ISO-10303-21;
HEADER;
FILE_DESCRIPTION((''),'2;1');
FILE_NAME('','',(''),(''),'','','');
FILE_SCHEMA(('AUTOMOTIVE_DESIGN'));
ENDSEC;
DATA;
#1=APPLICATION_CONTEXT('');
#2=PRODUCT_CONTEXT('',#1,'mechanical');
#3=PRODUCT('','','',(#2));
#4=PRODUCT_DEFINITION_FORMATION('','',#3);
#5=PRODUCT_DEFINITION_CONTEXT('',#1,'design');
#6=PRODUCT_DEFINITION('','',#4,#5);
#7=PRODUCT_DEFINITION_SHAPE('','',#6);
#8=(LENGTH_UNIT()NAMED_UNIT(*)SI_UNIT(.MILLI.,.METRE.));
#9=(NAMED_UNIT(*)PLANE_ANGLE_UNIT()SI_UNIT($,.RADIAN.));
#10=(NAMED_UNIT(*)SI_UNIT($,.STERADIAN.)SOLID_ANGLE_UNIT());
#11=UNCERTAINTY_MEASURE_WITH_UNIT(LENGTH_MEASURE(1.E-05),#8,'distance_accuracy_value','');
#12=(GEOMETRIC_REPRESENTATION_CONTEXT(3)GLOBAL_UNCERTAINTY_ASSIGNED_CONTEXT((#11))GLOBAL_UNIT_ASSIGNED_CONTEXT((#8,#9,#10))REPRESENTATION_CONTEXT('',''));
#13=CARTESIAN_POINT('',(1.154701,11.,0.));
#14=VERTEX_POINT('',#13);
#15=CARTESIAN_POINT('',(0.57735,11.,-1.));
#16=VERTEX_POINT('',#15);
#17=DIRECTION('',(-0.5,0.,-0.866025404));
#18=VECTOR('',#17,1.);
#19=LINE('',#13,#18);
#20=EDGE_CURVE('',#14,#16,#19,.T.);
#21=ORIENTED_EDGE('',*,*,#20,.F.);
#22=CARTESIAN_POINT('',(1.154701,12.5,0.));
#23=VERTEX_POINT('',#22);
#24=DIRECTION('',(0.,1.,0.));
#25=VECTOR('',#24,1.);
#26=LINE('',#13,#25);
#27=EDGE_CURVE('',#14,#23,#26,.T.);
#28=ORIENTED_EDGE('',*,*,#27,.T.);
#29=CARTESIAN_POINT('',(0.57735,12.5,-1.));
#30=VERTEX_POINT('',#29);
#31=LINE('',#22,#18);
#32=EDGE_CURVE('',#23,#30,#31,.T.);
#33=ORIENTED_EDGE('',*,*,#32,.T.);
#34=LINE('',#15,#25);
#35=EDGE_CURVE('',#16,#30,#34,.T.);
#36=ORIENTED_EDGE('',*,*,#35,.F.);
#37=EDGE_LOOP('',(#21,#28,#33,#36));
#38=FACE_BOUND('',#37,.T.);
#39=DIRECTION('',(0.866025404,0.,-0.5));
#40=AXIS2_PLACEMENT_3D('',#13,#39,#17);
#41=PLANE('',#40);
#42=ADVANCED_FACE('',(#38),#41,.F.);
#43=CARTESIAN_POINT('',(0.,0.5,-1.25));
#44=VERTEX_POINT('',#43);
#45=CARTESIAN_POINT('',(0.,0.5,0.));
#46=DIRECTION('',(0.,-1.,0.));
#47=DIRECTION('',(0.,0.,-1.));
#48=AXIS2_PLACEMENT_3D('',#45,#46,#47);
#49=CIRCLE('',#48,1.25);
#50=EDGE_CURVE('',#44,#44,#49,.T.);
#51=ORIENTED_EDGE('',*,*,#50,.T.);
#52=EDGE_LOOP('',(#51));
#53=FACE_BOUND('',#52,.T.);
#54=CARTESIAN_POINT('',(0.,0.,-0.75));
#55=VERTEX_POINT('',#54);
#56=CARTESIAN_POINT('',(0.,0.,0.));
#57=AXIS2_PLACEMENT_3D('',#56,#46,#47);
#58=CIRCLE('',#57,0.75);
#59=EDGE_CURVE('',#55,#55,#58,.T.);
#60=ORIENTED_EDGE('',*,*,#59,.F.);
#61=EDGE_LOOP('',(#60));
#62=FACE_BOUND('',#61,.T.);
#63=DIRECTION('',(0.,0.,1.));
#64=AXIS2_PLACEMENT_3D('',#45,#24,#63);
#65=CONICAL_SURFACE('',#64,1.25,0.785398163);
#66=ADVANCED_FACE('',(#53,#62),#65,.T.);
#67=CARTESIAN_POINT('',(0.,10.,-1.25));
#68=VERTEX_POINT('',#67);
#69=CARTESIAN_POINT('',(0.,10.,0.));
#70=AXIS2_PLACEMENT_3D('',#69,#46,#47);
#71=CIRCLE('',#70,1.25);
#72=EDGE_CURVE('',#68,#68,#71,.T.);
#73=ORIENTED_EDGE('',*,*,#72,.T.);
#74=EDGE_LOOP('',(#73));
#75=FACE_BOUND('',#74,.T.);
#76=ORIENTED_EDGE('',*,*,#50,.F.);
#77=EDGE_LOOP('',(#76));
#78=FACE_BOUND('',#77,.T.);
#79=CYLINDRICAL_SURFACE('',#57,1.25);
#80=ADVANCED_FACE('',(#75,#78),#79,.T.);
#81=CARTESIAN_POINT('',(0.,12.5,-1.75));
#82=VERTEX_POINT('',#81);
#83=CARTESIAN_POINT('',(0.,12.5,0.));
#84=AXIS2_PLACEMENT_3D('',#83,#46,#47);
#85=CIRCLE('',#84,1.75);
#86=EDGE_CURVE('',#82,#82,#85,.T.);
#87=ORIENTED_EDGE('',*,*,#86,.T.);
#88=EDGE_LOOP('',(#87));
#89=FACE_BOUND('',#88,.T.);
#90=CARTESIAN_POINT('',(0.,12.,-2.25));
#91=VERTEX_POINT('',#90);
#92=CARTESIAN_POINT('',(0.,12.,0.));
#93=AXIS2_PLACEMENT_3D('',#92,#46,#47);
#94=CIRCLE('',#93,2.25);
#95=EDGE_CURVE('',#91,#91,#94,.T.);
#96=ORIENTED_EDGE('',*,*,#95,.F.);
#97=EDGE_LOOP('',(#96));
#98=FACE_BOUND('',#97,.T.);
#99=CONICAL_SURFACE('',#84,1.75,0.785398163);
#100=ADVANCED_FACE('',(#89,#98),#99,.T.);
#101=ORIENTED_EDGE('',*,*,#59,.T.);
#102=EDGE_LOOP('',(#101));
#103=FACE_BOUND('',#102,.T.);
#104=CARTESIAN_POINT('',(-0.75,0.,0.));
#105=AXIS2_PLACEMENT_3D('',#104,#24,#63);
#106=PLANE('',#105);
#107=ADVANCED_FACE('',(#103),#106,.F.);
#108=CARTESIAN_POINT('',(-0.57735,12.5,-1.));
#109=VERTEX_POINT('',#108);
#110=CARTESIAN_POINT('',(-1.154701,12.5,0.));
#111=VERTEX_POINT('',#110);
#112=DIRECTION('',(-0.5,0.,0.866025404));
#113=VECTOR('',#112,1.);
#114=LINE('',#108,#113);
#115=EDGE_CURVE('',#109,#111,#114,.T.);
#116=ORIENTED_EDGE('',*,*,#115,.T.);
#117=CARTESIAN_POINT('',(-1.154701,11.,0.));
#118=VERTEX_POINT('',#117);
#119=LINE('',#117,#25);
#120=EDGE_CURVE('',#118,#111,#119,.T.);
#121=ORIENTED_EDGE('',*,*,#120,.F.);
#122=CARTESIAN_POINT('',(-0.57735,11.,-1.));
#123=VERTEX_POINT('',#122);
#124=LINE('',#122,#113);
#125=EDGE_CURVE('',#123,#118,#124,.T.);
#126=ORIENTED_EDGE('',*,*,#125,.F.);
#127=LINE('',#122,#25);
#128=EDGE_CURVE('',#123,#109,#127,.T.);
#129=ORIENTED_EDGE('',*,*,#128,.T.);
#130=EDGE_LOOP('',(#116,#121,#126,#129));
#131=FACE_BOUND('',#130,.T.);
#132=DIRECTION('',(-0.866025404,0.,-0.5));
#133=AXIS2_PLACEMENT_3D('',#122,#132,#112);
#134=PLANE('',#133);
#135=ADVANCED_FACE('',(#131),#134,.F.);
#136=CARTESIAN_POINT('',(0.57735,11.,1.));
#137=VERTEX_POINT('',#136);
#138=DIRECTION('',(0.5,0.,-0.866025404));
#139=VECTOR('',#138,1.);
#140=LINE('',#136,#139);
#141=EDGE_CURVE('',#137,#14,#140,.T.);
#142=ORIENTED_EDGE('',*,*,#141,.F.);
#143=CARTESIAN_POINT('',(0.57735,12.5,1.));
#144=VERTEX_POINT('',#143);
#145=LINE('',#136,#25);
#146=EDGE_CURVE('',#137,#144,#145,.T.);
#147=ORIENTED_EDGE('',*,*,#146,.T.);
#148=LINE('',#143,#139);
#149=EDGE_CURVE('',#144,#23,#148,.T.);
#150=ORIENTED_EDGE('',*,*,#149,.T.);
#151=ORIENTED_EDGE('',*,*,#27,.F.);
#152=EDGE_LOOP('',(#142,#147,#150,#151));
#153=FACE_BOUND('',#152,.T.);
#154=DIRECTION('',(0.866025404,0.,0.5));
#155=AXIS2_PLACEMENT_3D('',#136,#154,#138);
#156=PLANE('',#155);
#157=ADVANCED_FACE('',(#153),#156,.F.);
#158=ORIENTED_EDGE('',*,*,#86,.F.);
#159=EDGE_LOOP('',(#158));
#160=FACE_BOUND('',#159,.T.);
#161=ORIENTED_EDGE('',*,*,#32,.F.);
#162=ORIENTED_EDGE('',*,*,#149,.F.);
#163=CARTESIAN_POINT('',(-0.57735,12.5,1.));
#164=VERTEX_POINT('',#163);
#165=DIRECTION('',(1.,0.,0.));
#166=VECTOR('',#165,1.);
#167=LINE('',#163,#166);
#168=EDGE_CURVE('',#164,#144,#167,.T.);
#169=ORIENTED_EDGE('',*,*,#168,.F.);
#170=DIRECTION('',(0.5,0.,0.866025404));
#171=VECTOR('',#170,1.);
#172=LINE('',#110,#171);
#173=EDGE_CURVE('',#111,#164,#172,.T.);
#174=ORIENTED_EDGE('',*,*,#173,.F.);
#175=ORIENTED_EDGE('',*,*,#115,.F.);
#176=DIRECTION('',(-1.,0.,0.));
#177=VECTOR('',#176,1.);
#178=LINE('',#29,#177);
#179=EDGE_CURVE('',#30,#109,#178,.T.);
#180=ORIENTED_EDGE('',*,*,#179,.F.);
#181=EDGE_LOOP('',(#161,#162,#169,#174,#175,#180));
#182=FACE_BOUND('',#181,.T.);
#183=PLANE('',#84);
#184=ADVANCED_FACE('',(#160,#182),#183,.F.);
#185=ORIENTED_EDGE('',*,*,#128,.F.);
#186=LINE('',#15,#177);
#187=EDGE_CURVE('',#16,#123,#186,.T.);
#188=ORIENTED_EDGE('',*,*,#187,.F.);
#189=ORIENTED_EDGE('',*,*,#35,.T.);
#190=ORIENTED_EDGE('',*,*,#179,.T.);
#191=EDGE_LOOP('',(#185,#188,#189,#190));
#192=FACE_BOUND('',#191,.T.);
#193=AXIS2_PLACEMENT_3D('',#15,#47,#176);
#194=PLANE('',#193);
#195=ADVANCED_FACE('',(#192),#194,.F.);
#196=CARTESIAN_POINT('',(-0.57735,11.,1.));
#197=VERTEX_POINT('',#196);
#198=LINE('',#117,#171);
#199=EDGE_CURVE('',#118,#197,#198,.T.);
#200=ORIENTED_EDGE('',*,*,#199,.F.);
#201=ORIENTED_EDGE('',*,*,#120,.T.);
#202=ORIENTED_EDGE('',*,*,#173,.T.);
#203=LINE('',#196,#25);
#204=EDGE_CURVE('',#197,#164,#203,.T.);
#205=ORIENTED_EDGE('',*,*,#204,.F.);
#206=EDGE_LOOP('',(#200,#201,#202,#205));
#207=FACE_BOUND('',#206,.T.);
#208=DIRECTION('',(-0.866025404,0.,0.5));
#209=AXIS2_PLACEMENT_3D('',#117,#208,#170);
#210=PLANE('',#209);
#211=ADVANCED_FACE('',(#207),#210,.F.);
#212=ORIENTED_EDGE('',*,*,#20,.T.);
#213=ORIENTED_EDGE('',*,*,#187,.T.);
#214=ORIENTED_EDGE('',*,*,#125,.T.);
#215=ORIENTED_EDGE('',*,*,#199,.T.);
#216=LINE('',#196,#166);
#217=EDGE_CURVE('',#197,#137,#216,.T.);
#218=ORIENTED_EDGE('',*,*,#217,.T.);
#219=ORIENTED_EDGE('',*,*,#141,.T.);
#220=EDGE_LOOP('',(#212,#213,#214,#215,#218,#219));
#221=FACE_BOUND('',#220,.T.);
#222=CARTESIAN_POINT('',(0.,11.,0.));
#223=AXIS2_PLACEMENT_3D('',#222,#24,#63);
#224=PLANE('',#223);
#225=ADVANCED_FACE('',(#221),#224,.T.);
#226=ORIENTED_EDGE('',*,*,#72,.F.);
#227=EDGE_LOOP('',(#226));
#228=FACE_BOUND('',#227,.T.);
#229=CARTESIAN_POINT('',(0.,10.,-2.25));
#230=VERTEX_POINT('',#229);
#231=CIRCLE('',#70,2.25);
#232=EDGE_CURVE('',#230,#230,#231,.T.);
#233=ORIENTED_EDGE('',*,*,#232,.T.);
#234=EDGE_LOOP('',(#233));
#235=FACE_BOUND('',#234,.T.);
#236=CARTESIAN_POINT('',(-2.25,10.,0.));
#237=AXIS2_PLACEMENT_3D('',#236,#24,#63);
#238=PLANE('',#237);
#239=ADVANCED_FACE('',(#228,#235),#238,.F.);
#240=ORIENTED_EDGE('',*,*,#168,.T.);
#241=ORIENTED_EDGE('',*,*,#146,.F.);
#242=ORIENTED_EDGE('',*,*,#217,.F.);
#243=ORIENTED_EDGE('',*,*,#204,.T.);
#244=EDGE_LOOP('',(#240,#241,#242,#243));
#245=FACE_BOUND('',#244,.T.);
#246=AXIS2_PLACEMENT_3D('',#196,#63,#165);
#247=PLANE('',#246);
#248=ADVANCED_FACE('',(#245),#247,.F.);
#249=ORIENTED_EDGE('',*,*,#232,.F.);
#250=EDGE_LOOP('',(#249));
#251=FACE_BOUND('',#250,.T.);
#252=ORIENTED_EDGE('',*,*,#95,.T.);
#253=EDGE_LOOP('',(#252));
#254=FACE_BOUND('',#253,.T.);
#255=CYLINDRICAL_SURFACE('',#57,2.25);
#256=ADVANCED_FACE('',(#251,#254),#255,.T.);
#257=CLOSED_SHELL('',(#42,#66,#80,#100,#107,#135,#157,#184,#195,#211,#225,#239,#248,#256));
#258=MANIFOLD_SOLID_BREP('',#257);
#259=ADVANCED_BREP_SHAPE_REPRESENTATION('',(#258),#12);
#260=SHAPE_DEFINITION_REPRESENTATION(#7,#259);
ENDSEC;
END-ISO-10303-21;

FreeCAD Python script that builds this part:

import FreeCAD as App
import Part
import Sketcher
Q = App.Units.Quantity

doc = App.newDocument("Part")
body = doc.addObject("PartDesign::Body", "Body")

sketch1 = doc.addObject("Sketcher::SketchObject", "Sketch")
body.addObject(sketch1)
sketch1.AttachmentSupport = (doc.XY_Plane, [""])
sketch1.MapMode = "FlatFace"
sketch1.addGeometry([
    Part.LineSegment(App.Vector(0, 12.5, 0), App.Vector(-1.8, 12.5, 0)),
    Part.LineSegment(App.Vector(-1.8, 12.5, 0), App.Vector(-2.2, 12, 0)),
    Part.LineSegment(App.Vector(-2.2, 12, 0), App.Vector(-2.2, 10, 0)),
    Part.LineSegment(App.Vector(-2.2, 10, 0), App.Vector(-1.2, 10, 0)),
    Part.LineSegment(App.Vector(-1.2, 10, 0), App.Vector(-1.2, 0.5, 0)),
    Part.LineSegment(App.Vector(-1.2, 0.5, 0), App.Vector(-0.8, 0, 0)),
    Part.LineSegment(App.Vector(-0.8, 0, 0), App.Vector(0, 0, 0)),
    Part.LineSegment(App.Vector(0, 0, 0), App.Vector(0, 12.5, 0)),
], False)
sketch1.addConstraint([
    Sketcher.Constraint("Coincident", 0, 2, 1, 1),
    Sketcher.Constraint("Coincident", 1, 2, 2, 1),
    Sketcher.Constraint("Coincident", 2, 2, 3, 1),
    Sketcher.Constraint("Coincident", 3, 2, 4, 1),
    Sketcher.Constraint("Coincident", 4, 2, 5, 1),
    Sketcher.Constraint("Coincident", 5, 2, 6, 1),
    Sketcher.Constraint("Coincident", 6, 2, 7, 1),
    Sketcher.Constraint("Coincident", 7, 2, 0, 1),
    Sketcher.Constraint("Horizontal", 0),
    Sketcher.Constraint("Vertical", 2),
    Sketcher.Constraint("Horizontal", 3),
    Sketcher.Constraint("Vertical", 4),
    Sketcher.Constraint("Horizontal", 6),
    Sketcher.Constraint("Vertical", 7),
    Sketcher.Constraint("Coincident", 6, 2, -1, 1),
    Sketcher.Constraint("Perpendicular", 1, 5),
    Sketcher.Constraint("Equal", 1, 5),
    Sketcher.Constraint("DistanceX", 3, 1, 3, 2, 1.0),
    Sketcher.Constraint("DistanceY", 2, 2, 2, 1, 2.0),
    Sketcher.Constraint("Angle", 1, Q("-135 deg")),
    Sketcher.Constraint("DistanceY", 4, 2, 4, 1, 9.5),
    Sketcher.Constraint("DistanceY", 7, 1, 7, 2, 12.5),
    Sketcher.Constraint("DistanceX", 0, 2, 0, 1, 1.75),
])
revolution = doc.addObject("PartDesign::Revolution", "Revolution")
body.addObject(revolution)
revolution.Profile = sketch1
revolution.ReferenceAxis = (sketch1, ["V_Axis"])
revolution.Angle = 360

sketch2 = doc.addObject("Sketcher::SketchObject", "Sketch001")
body.addObject(sketch2)
sketch2.AttachmentSupport = (doc.XZ_Plane, [""])
sketch2.MapMode = "FlatFace"
sketch2.AttachmentOffset = App.Placement(App.Vector(0, 0, -12.5), App.Rotation())
sketch2.addGeometry([
    Part.LineSegment(App.Vector(-1.2, 0, 0), App.Vector(-0.6, 1, 0)),
    Part.LineSegment(App.Vector(-0.6, 1, 0), App.Vector(0.6, 1, 0)),
    Part.LineSegment(App.Vector(0.6, 1, 0), App.Vector(1.2, 0, 0)),
    Part.LineSegment(App.Vector(1.2, 0, 0), App.Vector(0.6, -1, 0)),
    Part.LineSegment(App.Vector(0.6, -1, 0), App.Vector(-0.6, -1, 0)),
    Part.LineSegment(App.Vector(-0.6, -1, 0), App.Vector(-1.2, 0, 0)),
], False)
sketch2.addConstraint([
    Sketcher.Constraint("Coincident", 0, 2, 1, 1),
    Sketcher.Constraint("Coincident", 1, 2, 2, 1),
    Sketcher.Constraint("Coincident", 2, 2, 3, 1),
    Sketcher.Constraint("Coincident", 3, 2, 4, 1),
    Sketcher.Constraint("Coincident", 4, 2, 5, 1),
    Sketcher.Constraint("Coincident", 5, 2, 0, 1),
    Sketcher.Constraint("Horizontal", 1),
    Sketcher.Constraint("Horizontal", 4),
    Sketcher.Constraint("Symmetric", 0, 2, 3, 2, -1, 1),
    Sketcher.Constraint("Symmetric", 2, 2, 5, 2, -1, 1),
    Sketcher.Constraint("PointOnObject", 2, 2, -1),
    Sketcher.Constraint("Parallel", 2, 5),
    Sketcher.Constraint("Vertical", 1, 2, 3, 2),
    Sketcher.Constraint("Angle", 0, Q("60 deg")),
    Sketcher.Constraint("DistanceY", -1, 1, 0, 2, 1.0),
    Sketcher.Constraint("DistanceX", 1, 1, 1, 2, 1.154701),
])
pocket1 = doc.addObject("PartDesign::Pocket", "Pocket")
body.addObject(pocket1)
pocket1.Profile = sketch2
pocket1.Length = 1.5
pocket1.Reversed = True

doc.recompute()
